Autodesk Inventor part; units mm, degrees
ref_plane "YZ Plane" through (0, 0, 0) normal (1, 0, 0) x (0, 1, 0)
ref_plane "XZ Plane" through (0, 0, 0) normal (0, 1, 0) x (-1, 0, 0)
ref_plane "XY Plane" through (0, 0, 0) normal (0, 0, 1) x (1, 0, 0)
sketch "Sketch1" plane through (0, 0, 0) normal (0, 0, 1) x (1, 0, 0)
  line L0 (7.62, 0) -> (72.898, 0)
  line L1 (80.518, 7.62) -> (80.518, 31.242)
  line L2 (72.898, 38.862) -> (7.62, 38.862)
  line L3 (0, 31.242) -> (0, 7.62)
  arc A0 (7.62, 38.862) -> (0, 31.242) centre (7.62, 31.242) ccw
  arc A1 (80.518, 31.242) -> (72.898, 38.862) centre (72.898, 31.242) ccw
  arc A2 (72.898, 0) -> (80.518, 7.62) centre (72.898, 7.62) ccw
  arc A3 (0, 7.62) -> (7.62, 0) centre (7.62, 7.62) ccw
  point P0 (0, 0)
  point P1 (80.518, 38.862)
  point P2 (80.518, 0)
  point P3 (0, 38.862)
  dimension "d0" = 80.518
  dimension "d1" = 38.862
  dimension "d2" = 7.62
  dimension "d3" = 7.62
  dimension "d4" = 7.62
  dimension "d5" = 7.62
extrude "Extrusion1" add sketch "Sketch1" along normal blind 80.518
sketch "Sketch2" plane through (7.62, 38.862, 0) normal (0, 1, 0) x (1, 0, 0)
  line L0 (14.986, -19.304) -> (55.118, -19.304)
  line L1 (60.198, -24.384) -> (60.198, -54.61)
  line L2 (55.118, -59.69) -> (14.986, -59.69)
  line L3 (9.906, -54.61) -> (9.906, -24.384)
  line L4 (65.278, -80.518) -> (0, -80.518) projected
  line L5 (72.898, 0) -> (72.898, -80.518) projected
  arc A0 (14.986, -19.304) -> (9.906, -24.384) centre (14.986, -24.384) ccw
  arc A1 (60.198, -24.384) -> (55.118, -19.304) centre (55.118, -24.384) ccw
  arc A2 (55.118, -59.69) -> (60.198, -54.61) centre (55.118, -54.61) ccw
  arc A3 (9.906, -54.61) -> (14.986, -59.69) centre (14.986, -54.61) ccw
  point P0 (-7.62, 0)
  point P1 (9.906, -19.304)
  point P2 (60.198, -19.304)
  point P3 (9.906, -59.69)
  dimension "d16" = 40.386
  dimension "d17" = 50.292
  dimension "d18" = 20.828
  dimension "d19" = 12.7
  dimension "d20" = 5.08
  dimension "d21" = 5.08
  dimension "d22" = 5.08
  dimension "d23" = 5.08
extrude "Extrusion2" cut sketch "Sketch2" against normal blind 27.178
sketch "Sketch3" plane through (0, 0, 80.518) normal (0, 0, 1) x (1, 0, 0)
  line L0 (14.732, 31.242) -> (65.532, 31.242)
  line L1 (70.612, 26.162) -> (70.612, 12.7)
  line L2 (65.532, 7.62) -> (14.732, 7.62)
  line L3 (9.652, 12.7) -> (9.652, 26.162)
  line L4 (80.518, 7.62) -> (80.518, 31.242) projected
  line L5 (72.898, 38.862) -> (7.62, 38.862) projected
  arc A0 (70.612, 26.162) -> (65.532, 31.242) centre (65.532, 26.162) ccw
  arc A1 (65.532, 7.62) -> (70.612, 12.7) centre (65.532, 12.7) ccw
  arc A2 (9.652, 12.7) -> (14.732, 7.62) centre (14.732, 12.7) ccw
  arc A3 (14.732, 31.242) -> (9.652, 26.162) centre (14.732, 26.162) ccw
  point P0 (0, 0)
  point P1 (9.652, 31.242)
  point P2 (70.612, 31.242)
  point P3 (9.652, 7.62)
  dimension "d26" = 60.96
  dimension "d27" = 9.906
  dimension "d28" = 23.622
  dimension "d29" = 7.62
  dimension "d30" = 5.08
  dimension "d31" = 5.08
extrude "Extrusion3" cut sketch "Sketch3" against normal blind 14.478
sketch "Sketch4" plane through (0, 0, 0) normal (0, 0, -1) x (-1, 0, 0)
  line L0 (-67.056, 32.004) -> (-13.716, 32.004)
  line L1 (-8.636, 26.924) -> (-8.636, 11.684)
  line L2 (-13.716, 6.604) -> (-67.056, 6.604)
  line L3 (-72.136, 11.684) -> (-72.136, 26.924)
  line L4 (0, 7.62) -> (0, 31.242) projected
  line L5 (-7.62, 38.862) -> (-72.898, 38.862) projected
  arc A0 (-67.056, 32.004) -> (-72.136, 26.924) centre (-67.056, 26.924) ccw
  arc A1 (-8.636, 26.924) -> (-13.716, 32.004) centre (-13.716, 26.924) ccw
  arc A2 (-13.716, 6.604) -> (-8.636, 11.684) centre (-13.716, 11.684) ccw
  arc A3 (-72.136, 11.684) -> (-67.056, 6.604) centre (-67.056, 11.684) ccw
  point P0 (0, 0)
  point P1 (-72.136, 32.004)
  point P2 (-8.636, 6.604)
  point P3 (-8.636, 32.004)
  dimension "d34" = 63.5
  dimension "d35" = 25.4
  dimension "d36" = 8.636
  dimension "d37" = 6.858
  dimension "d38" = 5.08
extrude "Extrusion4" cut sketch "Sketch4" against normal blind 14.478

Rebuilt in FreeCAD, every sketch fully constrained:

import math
import FreeCAD as App
import Part
import Sketcher
Q = App.Units.Quantity

doc = App.newDocument("Part")
params = doc.addObject("Spreadsheet::Sheet", "Params")
for row, (alias, value) in enumerate([
    ("sketch1_radius", "0.3 in"),
    ("pad1_length", "3.17 in"),
    ("sketch2_radius", "0.2 in"),
    ("sketch2_width", "1.58 in"),
    ("pocket1_length", "1.07 in"),
    ("sketch3_radius", "0.2 in"),
    ("sketch3_width", "2 in"),
    ("pocket2_length", "0.57 in"),
    ("sketch4_radius", "0.2 in"),
    ("sketch4_width", "2.1 in"),
    ("pocket3_length", "0.57 in"),
], start=1):
    params.set(f"A{row}", alias)
    params.set(f"B{row}", "=" + value)
    params.setAlias(f"B{row}", alias)

body = doc.addObject("PartDesign::Body", "Body")

sketch1 = body.newObject("Sketcher::SketchObject", "Sketch")
sketch1.AttachmentSupport = (doc.getObject("XY_Plane"), [""])
sketch1.MapMode = "FlatFace"
sketch1.addGeometry(Part.ArcOfCircle(Part.Circle(App.Vector(8, 8, 0), App.Vector(0, 0, 1), 8), math.radians(180), math.radians(270)), False)
sketch1.addGeometry(Part.LineSegment(App.Vector(8, 0, 0), App.Vector(73, 0, 0)), False)
sketch1.addGeometry(Part.ArcOfCircle(Part.Circle(App.Vector(73, 8, 0), App.Vector(0, 0, 1), 8), math.radians(-90), math.radians(0)), False)
sketch1.addGeometry(Part.LineSegment(App.Vector(81, 8, 0), App.Vector(81, 31, 0)), False)
sketch1.addGeometry(Part.ArcOfCircle(Part.Circle(App.Vector(73, 31, 0), App.Vector(0, 0, 1), 8), math.radians(0), math.radians(90)), False)
sketch1.addGeometry(Part.LineSegment(App.Vector(73, 39, 0), App.Vector(8, 39, 0)), False)
sketch1.addGeometry(Part.ArcOfCircle(Part.Circle(App.Vector(8, 31, 0), App.Vector(0, 0, 1), 8), math.radians(90), math.radians(180)), False)
sketch1.addGeometry(Part.LineSegment(App.Vector(0, 31, 0), App.Vector(0, 8, 0)), False)
sketch1.addConstraint(Sketcher.Constraint("Tangent", 0, 2, 1, 1))
sketch1.addConstraint(Sketcher.Constraint("Tangent", 1, 2, 2, 1))
sketch1.addConstraint(Sketcher.Constraint("Tangent", 2, 2, 3, 1))
sketch1.addConstraint(Sketcher.Constraint("Tangent", 3, 2, 4, 1))
sketch1.addConstraint(Sketcher.Constraint("Tangent", 4, 2, 5, 1))
sketch1.addConstraint(Sketcher.Constraint("Tangent", 5, 2, 6, 1))
sketch1.addConstraint(Sketcher.Constraint("Tangent", 6, 2, 7, 1))
sketch1.addConstraint(Sketcher.Constraint("Tangent", 7, 2, 0, 1))
sketch1.addConstraint(Sketcher.Constraint("Horizontal", 1))
sketch1.addConstraint(Sketcher.Constraint("Vertical", 3))
sketch1.addConstraint(Sketcher.Constraint("Horizontal", 5))
sketch1.addConstraint(Sketcher.Constraint("Vertical", 7))
sketch1.addConstraint(Sketcher.Constraint("Equal", 0, 2))
sketch1.addConstraint(Sketcher.Constraint("Equal", 2, 4))
sketch1.addConstraint(Sketcher.Constraint("Equal", 4, 6))
sketch1.addConstraint(Sketcher.Constraint("PointOnObject", 0, 2, -1))
sketch1.addConstraint(Sketcher.Constraint("PointOnObject", 6, 2, -2))
sketch1.addConstraint(Sketcher.Constraint("Radius", 0, Q("0.3 in")))
sketch1.addConstraint(Sketcher.Constraint("DistanceX", -1, 1, 2, 2, Q("3.17 in")))
sketch1.addConstraint(Sketcher.Constraint("DistanceY", -1, 1, 4, 2, Q("1.53 in")))
sketch1.setExpression("Constraints[17]", "Params.sketch1_radius")
pad1 = body.newObject("PartDesign::Pad", "Pad")
pad1.Profile = sketch1
pad1.setExpression("Length", "Params.pad1_length")

sketch2 = body.newObject("Sketcher::SketchObject", "Sketch001")
sketch2.AttachmentSupport = (doc.getObject("XZ_Plane"), [""])
sketch2.MapMode = "FlatFace"
sketch2.AttachmentOffset = App.Placement(App.Vector(0, 0, -1.53 * 25.4), App.Rotation())
sketch2.addGeometry(Part.LineSegment(App.Vector(63, 19, 0), App.Vector(23, 19, 0)), False)
sketch2.addGeometry(Part.ArcOfCircle(Part.Circle(App.Vector(23, 24, 0), App.Vector(0, 0, 1), 5), math.radians(180), math.radians(270)), False)
sketch2.addGeometry(Part.LineSegment(App.Vector(18, 24, 0), App.Vector(18, 55, 0)), False)
sketch2.addGeometry(Part.ArcOfCircle(Part.Circle(App.Vector(23, 55, 0), App.Vector(0, 0, 1), 5), math.radians(90), math.radians(180)), False)
sketch2.addGeometry(Part.LineSegment(App.Vector(23, 60, 0), App.Vector(63, 60, 0)), False)
sketch2.addGeometry(Part.ArcOfCircle(Part.Circle(App.Vector(63, 55, 0), App.Vector(0, 0, 1), 5), math.radians(0), math.radians(90)), False)
sketch2.addGeometry(Part.LineSegment(App.Vector(68, 55, 0), App.Vector(68, 24, 0)), False)
sketch2.addGeometry(Part.ArcOfCircle(Part.Circle(App.Vector(63, 24, 0), App.Vector(0, 0, 1), 5), math.radians(-90), math.radians(0)), False)
sketch2.addConstraint(Sketcher.Constraint("Tangent", 0, 2, 1, 2))
sketch2.addConstraint(Sketcher.Constraint("Tangent", 1, 1, 2, 1))
sketch2.addConstraint(Sketcher.Constraint("Tangent", 2, 2, 3, 2))
sketch2.addConstraint(Sketcher.Constraint("Tangent", 3, 1, 4, 1))
sketch2.addConstraint(Sketcher.Constraint("Tangent", 4, 2, 5, 2))
sketch2.addConstraint(Sketcher.Constraint("Tangent", 5, 1, 6, 1))
sketch2.addConstraint(Sketcher.Constraint("Tangent", 6, 2, 7, 2))
sketch2.addConstraint(Sketcher.Constraint("Tangent", 7, 1, 0, 1))
sketch2.addConstraint(Sketcher.Constraint("Horizontal", 0))
sketch2.addConstraint(Sketcher.Constraint("Vertical", 2))
sketch2.addConstraint(Sketcher.Constraint("Horizontal", 4))
sketch2.addConstraint(Sketcher.Constraint("Vertical", 6))
sketch2.addConstraint(Sketcher.Constraint("Equal", 1, 3))
sketch2.addConstraint(Sketcher.Constraint("Equal", 3, 5))
sketch2.addConstraint(Sketcher.Constraint("Equal", 5, 7))
sketch2.addConstraint(Sketcher.Constraint("Radius", 1, Q("0.2 in")))
sketch2.addConstraint(Sketcher.Constraint("DistanceY", 0, 2, 3, 1, Q("1.59 in")))
sketch2.addConstraint(Sketcher.Constraint("DistanceX", 0, 2, 0, 1, Q("1.58 in")))
sketch2.addConstraint(Sketcher.Constraint("DistanceX", -1, 1, 1, 3, Q("0.89 in")))
sketch2.addConstraint(Sketcher.Constraint("DistanceY", -1, 1, 1, 3, Q("0.96 in")))
sketch2.setExpression("Constraints[15]", "Params.sketch2_radius")
sketch2.setExpression("Constraints[17]", "Params.sketch2_width")
pocket1 = body.newObject("PartDesign::Pocket", "Pocket")
pocket1.Profile = sketch2
pocket1.setExpression("Length", "Params.pocket1_length")
pocket1.Reversed = True

sketch3 = body.newObject("Sketcher::SketchObject", "Sketch002")
sketch3.AttachmentSupport = (doc.getObject("XY_Plane"), [""])
sketch3.MapMode = "FlatFace"
sketch3.AttachmentOffset = App.Placement(App.Vector(0, 0, 3.17 * 25.4), App.Rotation())
sketch3.addGeometry(Part.LineSegment(App.Vector(66, 31, 0), App.Vector(15, 31, 0)), False)
sketch3.addGeometry(Part.ArcOfCircle(Part.Circle(App.Vector(15, 26, 0), App.Vector(0, 0, 1), 5), math.radians(90), math.radians(180)), False)
sketch3.addGeometry(Part.LineSegment(App.Vector(10, 26, 0), App.Vector(10, 13, 0)), False)
sketch3.addGeometry(Part.ArcOfCircle(Part.Circle(App.Vector(15, 13, 0), App.Vector(0, 0, 1), 5), math.radians(180), math.radians(270)), False)
sketch3.addGeometry(Part.LineSegment(App.Vector(15, 8, 0), App.Vector(66, 8, 0)), False)
sketch3.addGeometry(Part.ArcOfCircle(Part.Circle(App.Vector(66, 13, 0), App.Vector(0, 0, 1), 5), math.radians(-90), math.radians(0)), False)
sketch3.addGeometry(Part.LineSegment(App.Vector(71, 13, 0), App.Vector(71, 26, 0)), False)
sketch3.addGeometry(Part.ArcOfCircle(Part.Circle(App.Vector(66, 26, 0), App.Vector(0, 0, 1), 5), math.radians(0), math.radians(90)), False)
sketch3.addConstraint(Sketcher.Constraint("Tangent", 0, 2, 1, 1))
sketch3.addConstraint(Sketcher.Constraint("Tangent", 1, 2, 2, 1))
sketch3.addConstraint(Sketcher.Constraint("Tangent", 2, 2, 3, 1))
sketch3.addConstraint(Sketcher.Constraint("Tangent", 3, 2, 4, 1))
sketch3.addConstraint(Sketcher.Constraint("Tangent", 4, 2, 5, 1))
sketch3.addConstraint(Sketcher.Constraint("Tangent", 5, 2, 6, 1))
sketch3.addConstraint(Sketcher.Constraint("Tangent", 6, 2, 7, 1))
sketch3.addConstraint(Sketcher.Constraint("Tangent", 7, 2, 0, 1))
sketch3.addConstraint(Sketcher.Constraint("Horizontal", 0))
sketch3.addConstraint(Sketcher.Constraint("Vertical", 2))
sketch3.addConstraint(Sketcher.Constraint("Horizontal", 4))
sketch3.addConstraint(Sketcher.Constraint("Vertical", 6))
sketch3.addConstraint(Sketcher.Constraint("Equal", 1, 3))
sketch3.addConstraint(Sketcher.Constraint("Equal", 3, 5))
sketch3.addConstraint(Sketcher.Constraint("Equal", 5, 7))
sketch3.addConstraint(Sketcher.Constraint("Radius", 1, Q("0.2 in")))
sketch3.addConstraint(Sketcher.Constraint("DistanceY", -1, 1, 3, 2, Q("0.3 in")))
sketch3.addConstraint(Sketcher.Constraint("DistanceX", 0, 2, 0, 1, Q("2 in")))
sketch3.addConstraint(Sketcher.Constraint("DistanceY", 3, 2, 0, 2, Q("0.93 in")))
sketch3.addConstraint(Sketcher.Constraint("DistanceX", -1, 1, 1, 3, Q("0.58 in")))
sketch3.setExpression("Constraints[15]", "Params.sketch3_radius")
sketch3.setExpression("Constraints[17]", "Params.sketch3_width")
pocket2 = body.newObject("PartDesign::Pocket", "Pocket001")
pocket2.Profile = sketch3
pocket2.setExpression("Length", "Params.pocket2_length")

sketch4 = body.newObject("Sketcher::SketchObject", "Sketch003")
sketch4.AttachmentSupport = (doc.getObject("XY_Plane"), [""])
sketch4.MapMode = "FlatFace"
sketch4.addGeometry(Part.LineSegment(App.Vector(14, 32, 0), App.Vector(67, 32, 0)), False)
sketch4.addGeometry(Part.ArcOfCircle(Part.Circle(App.Vector(67, 27, 0), App.Vector(0, 0, 1), 5), math.radians(0), math.radians(90)), False)
sketch4.addGeometry(Part.LineSegment(App.Vector(72, 27, 0), App.Vector(72, 12, 0)), False)
sketch4.addGeometry(Part.ArcOfCircle(Part.Circle(App.Vector(67, 12, 0), App.Vector(0, 0, 1), 5), math.radians(-90), math.radians(0)), False)
sketch4.addGeometry(Part.LineSegment(App.Vector(67, 7, 0), App.Vector(14, 7, 0)), False)
sketch4.addGeometry(Part.ArcOfCircle(Part.Circle(App.Vector(14, 12, 0), App.Vector(0, 0, 1), 5), math.radians(180), math.radians(270)), False)
sketch4.addGeometry(Part.LineSegment(App.Vector(9, 12, 0), App.Vector(9, 27, 0)), False)
sketch4.addGeometry(Part.ArcOfCircle(Part.Circle(App.Vector(14, 27, 0), App.Vector(0, 0, 1), 5), math.radians(90), math.radians(180)), False)
sketch4.addConstraint(Sketcher.Constraint("Tangent", 0, 2, 1, 2))
sketch4.addConstraint(Sketcher.Constraint("Tangent", 1, 1, 2, 1))
sketch4.addConstraint(Sketcher.Constraint("Tangent", 2, 2, 3, 2))
sketch4.addConstraint(Sketcher.Constraint("Tangent", 3, 1, 4, 1))
sketch4.addConstraint(Sketcher.Constraint("Tangent", 4, 2, 5, 2))
sketch4.addConstraint(Sketcher.Constraint("Tangent", 5, 1, 6, 1))
sketch4.addConstraint(Sketcher.Constraint("Tangent", 6, 2, 7, 2))
sketch4.addConstraint(Sketcher.Constraint("Tangent", 7, 1, 0, 1))
sketch4.addConstraint(Sketcher.Constraint("Horizontal", 0))
sketch4.addConstraint(Sketcher.Constraint("Vertical", 2))
sketch4.addConstraint(Sketcher.Constraint("Horizontal", 4))
sketch4.addConstraint(Sketcher.Constraint("Vertical", 6))
sketch4.addConstraint(Sketcher.Constraint("Equal", 1, 3))
sketch4.addConstraint(Sketcher.Constraint("Equal", 3, 5))
sketch4.addConstraint(Sketcher.Constraint("Equal", 5, 7))
sketch4.addConstraint(Sketcher.Constraint("Radius", 1, Q("0.2 in")))
sketch4.addConstraint(Sketcher.Constraint("DistanceY", 3, 1, 0, 2, Q("1 in")))
sketch4.addConstraint(Sketcher.Constraint("DistanceX", -1, 1, 5, 1, Q("0.34 in")))
sketch4.addConstraint(Sketcher.Constraint("DistanceX", 0, 1, 0, 2, Q("2.1 in")))
sketch4.addConstraint(Sketcher.Constraint("DistanceY", -1, 1, 1, 3, Q("1.06 in")))
sketch4.setExpression("Constraints[15]", "Params.sketch4_radius")
sketch4.setExpression("Constraints[18]", "Params.sketch4_width")
pocket3 = body.newObject("PartDesign::Pocket", "Pocket002")
pocket3.Profile = sketch4
pocket3.setExpression("Length", "Params.pocket3_length")
pocket3.Reversed = True

doc.recompute()
